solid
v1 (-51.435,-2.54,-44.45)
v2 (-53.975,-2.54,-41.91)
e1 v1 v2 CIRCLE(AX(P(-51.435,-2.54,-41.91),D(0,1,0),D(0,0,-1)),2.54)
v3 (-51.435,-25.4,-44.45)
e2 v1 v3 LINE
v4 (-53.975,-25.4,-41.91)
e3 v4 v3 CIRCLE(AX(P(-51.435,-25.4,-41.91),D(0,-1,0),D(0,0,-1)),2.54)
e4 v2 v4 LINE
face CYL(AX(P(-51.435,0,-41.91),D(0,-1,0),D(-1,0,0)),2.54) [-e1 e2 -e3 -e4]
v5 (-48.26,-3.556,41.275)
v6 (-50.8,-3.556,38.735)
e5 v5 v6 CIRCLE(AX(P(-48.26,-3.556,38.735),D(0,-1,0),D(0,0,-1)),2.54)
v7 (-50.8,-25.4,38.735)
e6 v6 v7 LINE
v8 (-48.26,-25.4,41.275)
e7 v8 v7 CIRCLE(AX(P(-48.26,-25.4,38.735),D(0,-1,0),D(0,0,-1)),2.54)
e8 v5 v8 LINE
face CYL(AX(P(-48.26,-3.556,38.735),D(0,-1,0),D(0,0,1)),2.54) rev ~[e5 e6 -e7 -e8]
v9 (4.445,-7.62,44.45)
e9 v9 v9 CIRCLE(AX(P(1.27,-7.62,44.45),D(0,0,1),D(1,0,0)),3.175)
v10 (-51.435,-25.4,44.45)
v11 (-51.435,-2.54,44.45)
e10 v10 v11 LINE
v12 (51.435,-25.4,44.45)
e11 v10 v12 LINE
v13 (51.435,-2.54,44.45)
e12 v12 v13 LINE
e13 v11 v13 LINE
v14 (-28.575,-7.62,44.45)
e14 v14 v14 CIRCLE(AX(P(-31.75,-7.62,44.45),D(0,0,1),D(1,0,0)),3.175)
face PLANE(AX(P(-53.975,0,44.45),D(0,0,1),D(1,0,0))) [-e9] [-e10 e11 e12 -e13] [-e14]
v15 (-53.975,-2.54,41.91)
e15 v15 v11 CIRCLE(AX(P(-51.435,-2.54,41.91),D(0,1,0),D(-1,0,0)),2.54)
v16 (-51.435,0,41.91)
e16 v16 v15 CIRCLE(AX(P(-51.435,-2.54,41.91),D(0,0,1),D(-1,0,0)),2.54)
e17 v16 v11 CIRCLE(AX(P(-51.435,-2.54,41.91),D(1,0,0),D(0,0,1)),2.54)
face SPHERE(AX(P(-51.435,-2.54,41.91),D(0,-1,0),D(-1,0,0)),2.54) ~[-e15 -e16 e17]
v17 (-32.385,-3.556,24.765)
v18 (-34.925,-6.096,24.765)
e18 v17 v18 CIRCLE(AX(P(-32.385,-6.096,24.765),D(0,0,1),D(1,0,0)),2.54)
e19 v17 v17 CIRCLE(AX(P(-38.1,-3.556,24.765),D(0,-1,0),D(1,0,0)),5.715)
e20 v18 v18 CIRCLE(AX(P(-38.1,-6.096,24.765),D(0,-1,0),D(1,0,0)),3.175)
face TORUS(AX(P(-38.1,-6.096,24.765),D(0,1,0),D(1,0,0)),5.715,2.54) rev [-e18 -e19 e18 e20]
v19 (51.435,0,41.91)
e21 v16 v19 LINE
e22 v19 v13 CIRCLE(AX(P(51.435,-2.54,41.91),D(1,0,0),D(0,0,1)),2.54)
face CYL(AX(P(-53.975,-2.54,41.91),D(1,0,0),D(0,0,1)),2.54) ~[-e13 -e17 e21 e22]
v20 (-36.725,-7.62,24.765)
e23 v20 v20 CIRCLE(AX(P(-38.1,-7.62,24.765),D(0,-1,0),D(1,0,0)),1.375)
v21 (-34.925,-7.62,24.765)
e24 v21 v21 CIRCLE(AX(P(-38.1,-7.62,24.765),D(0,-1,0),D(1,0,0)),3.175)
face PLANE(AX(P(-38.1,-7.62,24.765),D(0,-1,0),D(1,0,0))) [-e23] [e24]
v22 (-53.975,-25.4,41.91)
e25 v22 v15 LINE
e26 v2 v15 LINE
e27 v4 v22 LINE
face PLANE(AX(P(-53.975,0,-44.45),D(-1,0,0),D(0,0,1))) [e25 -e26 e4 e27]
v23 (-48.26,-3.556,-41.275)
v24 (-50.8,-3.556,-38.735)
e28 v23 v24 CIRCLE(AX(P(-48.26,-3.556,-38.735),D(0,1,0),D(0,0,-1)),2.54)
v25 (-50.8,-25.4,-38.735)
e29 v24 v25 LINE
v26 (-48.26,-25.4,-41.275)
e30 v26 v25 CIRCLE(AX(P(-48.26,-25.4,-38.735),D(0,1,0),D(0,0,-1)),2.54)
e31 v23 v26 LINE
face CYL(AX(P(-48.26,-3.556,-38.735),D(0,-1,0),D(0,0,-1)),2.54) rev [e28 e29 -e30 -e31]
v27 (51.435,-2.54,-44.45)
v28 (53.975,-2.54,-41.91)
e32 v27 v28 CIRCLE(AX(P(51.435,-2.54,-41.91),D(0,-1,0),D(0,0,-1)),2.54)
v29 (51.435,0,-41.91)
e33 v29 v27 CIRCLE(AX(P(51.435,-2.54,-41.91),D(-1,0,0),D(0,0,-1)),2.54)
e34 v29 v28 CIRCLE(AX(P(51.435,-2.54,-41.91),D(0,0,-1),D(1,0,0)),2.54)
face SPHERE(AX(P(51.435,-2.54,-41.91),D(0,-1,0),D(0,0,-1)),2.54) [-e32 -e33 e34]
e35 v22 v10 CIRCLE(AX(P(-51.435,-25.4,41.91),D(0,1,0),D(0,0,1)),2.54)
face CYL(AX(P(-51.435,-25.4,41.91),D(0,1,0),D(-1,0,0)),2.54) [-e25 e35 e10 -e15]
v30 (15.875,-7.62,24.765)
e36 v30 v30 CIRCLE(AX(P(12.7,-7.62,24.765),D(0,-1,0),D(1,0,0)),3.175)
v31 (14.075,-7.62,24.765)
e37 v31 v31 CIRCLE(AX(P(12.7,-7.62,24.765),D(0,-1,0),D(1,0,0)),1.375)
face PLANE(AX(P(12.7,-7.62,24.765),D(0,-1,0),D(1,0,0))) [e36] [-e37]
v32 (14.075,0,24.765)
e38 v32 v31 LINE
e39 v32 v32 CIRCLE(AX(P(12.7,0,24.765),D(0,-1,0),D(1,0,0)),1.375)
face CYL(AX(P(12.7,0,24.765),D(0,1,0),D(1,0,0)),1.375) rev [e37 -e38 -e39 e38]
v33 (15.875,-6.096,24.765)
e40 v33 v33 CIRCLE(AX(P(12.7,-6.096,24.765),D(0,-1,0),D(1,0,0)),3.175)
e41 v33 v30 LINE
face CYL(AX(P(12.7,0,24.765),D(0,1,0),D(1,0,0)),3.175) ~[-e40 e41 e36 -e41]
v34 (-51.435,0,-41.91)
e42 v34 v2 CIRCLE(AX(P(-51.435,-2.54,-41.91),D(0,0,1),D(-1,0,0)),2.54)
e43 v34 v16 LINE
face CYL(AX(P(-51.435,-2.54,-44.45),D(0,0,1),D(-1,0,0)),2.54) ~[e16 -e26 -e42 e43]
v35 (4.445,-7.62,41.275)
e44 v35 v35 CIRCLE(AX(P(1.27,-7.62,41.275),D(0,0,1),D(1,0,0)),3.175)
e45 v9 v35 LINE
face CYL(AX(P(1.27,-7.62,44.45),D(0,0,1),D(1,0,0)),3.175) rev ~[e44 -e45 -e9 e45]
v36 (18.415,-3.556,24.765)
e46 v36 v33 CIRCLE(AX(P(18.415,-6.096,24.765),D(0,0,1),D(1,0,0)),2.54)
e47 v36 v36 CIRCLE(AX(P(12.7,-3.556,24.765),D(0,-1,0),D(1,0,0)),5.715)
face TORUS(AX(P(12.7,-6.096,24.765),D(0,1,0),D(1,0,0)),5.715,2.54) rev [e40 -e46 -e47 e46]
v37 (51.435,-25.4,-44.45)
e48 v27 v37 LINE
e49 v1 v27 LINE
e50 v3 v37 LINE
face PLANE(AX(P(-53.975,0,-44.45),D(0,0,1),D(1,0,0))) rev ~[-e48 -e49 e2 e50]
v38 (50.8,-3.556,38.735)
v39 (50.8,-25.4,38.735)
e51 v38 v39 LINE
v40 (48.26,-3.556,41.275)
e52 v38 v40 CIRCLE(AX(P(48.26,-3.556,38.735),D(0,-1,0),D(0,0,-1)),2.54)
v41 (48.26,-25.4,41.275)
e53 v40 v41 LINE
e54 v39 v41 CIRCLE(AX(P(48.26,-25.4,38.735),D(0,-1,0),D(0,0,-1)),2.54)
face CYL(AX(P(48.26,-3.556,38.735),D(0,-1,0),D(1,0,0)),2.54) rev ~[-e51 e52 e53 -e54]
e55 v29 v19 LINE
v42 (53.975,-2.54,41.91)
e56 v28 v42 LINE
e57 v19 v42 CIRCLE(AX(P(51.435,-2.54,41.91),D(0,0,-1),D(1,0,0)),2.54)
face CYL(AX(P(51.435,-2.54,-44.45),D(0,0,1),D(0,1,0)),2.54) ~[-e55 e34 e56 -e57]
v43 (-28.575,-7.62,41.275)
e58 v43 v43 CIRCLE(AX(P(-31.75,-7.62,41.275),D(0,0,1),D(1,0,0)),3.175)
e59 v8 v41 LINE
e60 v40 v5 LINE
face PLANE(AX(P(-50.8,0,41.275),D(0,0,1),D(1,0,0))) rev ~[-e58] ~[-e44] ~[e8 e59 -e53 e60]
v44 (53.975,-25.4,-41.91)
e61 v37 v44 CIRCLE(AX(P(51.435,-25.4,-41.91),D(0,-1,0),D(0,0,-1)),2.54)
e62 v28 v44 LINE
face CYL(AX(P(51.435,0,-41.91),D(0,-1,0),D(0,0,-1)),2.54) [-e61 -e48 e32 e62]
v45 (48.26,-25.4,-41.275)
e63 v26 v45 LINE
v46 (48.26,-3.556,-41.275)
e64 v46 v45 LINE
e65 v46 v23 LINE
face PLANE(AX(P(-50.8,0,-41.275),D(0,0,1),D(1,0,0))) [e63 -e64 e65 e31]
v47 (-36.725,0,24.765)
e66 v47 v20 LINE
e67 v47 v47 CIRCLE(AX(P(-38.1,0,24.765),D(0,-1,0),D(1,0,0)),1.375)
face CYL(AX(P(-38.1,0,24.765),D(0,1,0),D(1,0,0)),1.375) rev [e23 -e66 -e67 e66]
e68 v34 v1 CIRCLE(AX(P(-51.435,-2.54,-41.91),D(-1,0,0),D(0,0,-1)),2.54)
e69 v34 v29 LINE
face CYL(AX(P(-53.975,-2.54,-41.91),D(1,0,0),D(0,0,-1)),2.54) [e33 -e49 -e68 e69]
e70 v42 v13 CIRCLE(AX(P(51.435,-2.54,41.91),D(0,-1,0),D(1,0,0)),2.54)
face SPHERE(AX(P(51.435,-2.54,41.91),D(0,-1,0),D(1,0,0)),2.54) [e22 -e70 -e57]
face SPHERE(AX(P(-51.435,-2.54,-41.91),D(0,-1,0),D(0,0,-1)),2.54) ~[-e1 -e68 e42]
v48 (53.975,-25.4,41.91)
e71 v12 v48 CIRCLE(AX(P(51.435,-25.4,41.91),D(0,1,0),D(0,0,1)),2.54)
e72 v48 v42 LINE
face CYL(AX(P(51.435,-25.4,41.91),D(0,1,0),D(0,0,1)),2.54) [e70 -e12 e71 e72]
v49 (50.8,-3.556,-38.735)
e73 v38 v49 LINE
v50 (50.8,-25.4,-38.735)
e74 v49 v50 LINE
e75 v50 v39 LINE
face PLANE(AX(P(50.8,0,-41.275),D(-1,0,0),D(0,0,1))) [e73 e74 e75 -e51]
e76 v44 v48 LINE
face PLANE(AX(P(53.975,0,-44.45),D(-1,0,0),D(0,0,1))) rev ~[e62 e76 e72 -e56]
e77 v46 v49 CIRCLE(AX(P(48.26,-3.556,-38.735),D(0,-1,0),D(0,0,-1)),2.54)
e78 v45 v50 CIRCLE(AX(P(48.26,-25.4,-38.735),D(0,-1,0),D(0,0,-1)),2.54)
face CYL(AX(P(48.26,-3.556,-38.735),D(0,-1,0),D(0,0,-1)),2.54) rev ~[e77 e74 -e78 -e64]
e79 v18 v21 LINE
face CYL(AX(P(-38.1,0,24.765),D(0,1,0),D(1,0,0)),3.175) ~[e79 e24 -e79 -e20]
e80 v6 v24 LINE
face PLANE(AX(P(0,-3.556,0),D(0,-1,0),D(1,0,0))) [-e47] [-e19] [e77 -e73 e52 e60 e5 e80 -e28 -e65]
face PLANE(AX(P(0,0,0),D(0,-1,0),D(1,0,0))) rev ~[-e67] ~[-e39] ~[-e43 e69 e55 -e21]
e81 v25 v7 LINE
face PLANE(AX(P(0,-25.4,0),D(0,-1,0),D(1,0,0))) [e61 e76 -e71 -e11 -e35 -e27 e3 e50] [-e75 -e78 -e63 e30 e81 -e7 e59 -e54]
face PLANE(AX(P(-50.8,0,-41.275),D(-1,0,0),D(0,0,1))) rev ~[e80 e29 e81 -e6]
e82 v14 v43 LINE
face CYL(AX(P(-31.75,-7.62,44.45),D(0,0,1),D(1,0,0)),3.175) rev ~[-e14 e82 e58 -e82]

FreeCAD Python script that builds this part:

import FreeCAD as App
import Part
import Sketcher
from FreeCAD import Vector
Q = App.Units.Quantity


def edges_at(feature, points):
    """Names of the edges that pass closest to the given points."""
    edges = feature.Shape.Edges
    near = lambda p: min(range(len(edges)), key=lambda i: edges[i].distToShape(Part.Vertex(*p))[0])
    return sorted({f"Edge{near(p) + 1}" for p in points})


def add_polygon(sketch, points):
    """Adds a closed chain of lines whose ends are joined by coincident constraints."""
    first, n = sketch.GeometryCount, len(points)
    for a, b in zip(points, points[1:] + points[:1]):
        sketch.addGeometry(Part.LineSegment(App.Vector(*a, 0), App.Vector(*b, 0)), False)
    for i in range(n):
        sketch.addConstraint(Sketcher.Constraint("Coincident", first + i, 2, first + (i + 1) % n, 1))

doc = App.newDocument("Part")
body = doc.addObject("PartDesign::Body", "Body")

# Sketch on XZ plane
sketch1 = body.newObject("Sketcher::SketchObject", "Sketch")
sketch1.AttachmentSupport = (doc.getObject("XZ_Plane"), [""])
sketch1.MapMode = "FlatFace"
add_polygon(sketch1, [(-54, 44.5), (-54, -44.5), (54, -44.5), (54, 44.5)])  # lines 0-3
sketch1.addGeometry(Part.Circle(Vector(-38.1, 24.8, 0), Vector(0, 0, 1), 3.2), False)  # 4
sketch1.addGeometry(Part.Circle(Vector(12.7, 24.8, 0), Vector(0, 0, 1), 3.2), False)  # 5
sketch1.addConstraint([
    Sketcher.Constraint("Vertical", 0),
    Sketcher.Constraint("Horizontal", 1),
    Sketcher.Constraint("Vertical", 2),
    Sketcher.Constraint("Horizontal", 3),
    Sketcher.Constraint("Equal", 4, 5),
    Sketcher.Constraint("Symmetric", 0, 2, 2, 2, -1, 1),
    Sketcher.Constraint("Horizontal", 4, 3, 5, 3),
    Sketcher.Constraint("Diameter", 4, Q("0.25 in")),
    Sketcher.Constraint("DistanceY", 0, 2, 0, 1, Q("3.5 in")),
    Sketcher.Constraint("DistanceX", 4, 3, 5, 3, Q("2 in")),
    Sketcher.Constraint("DistanceX", 1, 1, 1, 2, Q("4.25 in")),
    Sketcher.Constraint("DistanceX", 4, 3, -1, 1, Q("1.5 in")),
    Sketcher.Constraint("DistanceY", -1, 1, 4, 3, Q("0.975 in")),
])
pad1 = body.newObject("PartDesign::Pad", "Pad")
pad1.Profile = sketch1
pad1.Length = Q("0.14 in")

# Sketch on XZ plane
sketch2 = body.newObject("Sketcher::SketchObject", "Sketch001")
sketch2.AttachmentSupport = (doc.getObject("XZ_Plane"), [""])
sketch2.MapMode = "FlatFace"
sketch2.addGeometry([
    Part.Circle(Vector(-38.1, 24.8, 0), Vector(0, 0, 1), 3.2),
    Part.Circle(Vector(-38.1, 24.8, 0), Vector(0, 0, 1), 1.4),
    Part.Circle(Vector(12.7, 24.8, 0), Vector(0, 0, 1), 3.2),
    Part.Circle(Vector(12.7, 24.8, 0), Vector(0, 0, 1), 1.4),
], False)
sketch2.addConstraint([
    Sketcher.Constraint("Coincident", 1, 3, 0, 3),
    Sketcher.Constraint("Coincident", 3, 3, 2, 3),
    Sketcher.Constraint("Equal", 0, 2),
    Sketcher.Constraint("Equal", 1, 3),
    Sketcher.Constraint("Horizontal", 1, 3, 2, 3),
    Sketcher.Constraint("Diameter", 0, Q("0.25 in")),
    Sketcher.Constraint("DistanceX", 0, 3, 2, 3, Q("2 in")),
    Sketcher.Constraint("DistanceX", 0, 3, -1, 1, Q("1.5 in")),
    Sketcher.Constraint("Diameter", 1, 2.75),
    Sketcher.Constraint("DistanceY", -1, 1, 0, 3, Q("0.975 in")),
])
pad2 = body.newObject("PartDesign::Pad", "Pad001")
pad2.Profile = sketch2
pad2.Length = Q("0.3 in")

# Sketch on XZ plane
sketch3 = body.newObject("Sketcher::SketchObject", "Sketch002")
sketch3.AttachmentSupport = (doc.getObject("XZ_Plane"), [""])
sketch3.MapMode = "FlatFace"
add_polygon(sketch3, [(-54, 44), (-54, -44), (54, -44), (54, 44)])  # lines 0-3
add_polygon(sketch3, [(51, -41), (-51, -41), (-51, 41), (51, 41)])  # lines 4-7
sketch3.addConstraint([
    Sketcher.Constraint("Vertical", 0),
    Sketcher.Constraint("Horizontal", 1),
    Sketcher.Constraint("Vertical", 2),
    Sketcher.Constraint("Horizontal", 3),
    Sketcher.Constraint("Horizontal", 4),
    Sketcher.Constraint("Vertical", 5),
    Sketcher.Constraint("Horizontal", 6),
    Sketcher.Constraint("Vertical", 7),
    Sketcher.Constraint("Symmetric", 0, 2, 2, 2, -1, 1),
    Sketcher.Constraint("Symmetric", 4, 2, 6, 2, -1, 1),
    Sketcher.Constraint("DistanceX", 4, 2, 4, 1, Q("4 in")),
    Sketcher.Constraint("DistanceY", 0, 2, 0, 1, Q("3.5 in")),
    Sketcher.Constraint("DistanceX", 1, 1, 1, 2, Q("4.25 in")),
    Sketcher.Constraint("DistanceY", 5, 1, 5, 2, Q("3.25 in")),
])
pad3 = body.newObject("PartDesign::Pad", "Pad002")
pad3.Profile = sketch3
pad3.Length = Q("1 in")

# Sketch on XY plane
sketch4 = body.newObject("Sketcher::SketchObject", "Sketch003")
sketch4.AttachmentSupport = (doc.getObject("XY_Plane"), [""])
sketch4.MapMode = "FlatFace"
sketch4.AttachmentOffset = App.Placement(Vector(0, 0, 1.75 * 25.4), App.Rotation())
sketch4.addGeometry([
    Part.Circle(Vector(1.3, -7.6, 0), Vector(0, 0, 1), 3.2),
    Part.Circle(Vector(-31.8, -7.6, 0), Vector(0, 0, 1), 3.2),
], False)
sketch4.addConstraint([
    Sketcher.Constraint("Equal", 0, 1),
    Sketcher.Constraint("Horizontal", 0, 3, 1, 3),
    Sketcher.Constraint("Diameter", 0, Q("0.25 in")),
    Sketcher.Constraint("DistanceY", 0, 3, -1, 1, Q("0.3 in")),
    Sketcher.Constraint("DistanceX", 1, 3, 0, 3, Q("1.3 in")),
    Sketcher.Constraint("DistanceX", -1, 1, 0, 3, Q("0.05 in")),
])
pocket1 = body.newObject("PartDesign::Pocket", "Pocket")
pocket1.Profile = sketch4
pocket1.Length = Q("0.2 in")
doc.recompute()

fillet = body.newObject("PartDesign::Fillet", "Fillet")
fillet.Base = (pocket1, edges_at(pocket1, [
    (-53.975, -12.7, 44.45),
    (-50.8, -14.478, 41.275),
    (53.975, -12.7, 44.45),
    (-53.975, -12.7, -44.45),
    (50.8, -14.478, 41.275),
    (-50.8, -14.478, -41.275),
    (53.975, -12.7, -44.45),
    (50.8, -14.478, -41.275),
    (0, 0, -44.45),
    (53.975, 0, 0),
    (-53.975, 0, 0),
    (0, 0, 44.45),
    (9.525, -3.556, 24.765),
    (-41.275, -3.556, 24.765),
]))
fillet.Radius = Q("0.1 in")

doc.recompute()
